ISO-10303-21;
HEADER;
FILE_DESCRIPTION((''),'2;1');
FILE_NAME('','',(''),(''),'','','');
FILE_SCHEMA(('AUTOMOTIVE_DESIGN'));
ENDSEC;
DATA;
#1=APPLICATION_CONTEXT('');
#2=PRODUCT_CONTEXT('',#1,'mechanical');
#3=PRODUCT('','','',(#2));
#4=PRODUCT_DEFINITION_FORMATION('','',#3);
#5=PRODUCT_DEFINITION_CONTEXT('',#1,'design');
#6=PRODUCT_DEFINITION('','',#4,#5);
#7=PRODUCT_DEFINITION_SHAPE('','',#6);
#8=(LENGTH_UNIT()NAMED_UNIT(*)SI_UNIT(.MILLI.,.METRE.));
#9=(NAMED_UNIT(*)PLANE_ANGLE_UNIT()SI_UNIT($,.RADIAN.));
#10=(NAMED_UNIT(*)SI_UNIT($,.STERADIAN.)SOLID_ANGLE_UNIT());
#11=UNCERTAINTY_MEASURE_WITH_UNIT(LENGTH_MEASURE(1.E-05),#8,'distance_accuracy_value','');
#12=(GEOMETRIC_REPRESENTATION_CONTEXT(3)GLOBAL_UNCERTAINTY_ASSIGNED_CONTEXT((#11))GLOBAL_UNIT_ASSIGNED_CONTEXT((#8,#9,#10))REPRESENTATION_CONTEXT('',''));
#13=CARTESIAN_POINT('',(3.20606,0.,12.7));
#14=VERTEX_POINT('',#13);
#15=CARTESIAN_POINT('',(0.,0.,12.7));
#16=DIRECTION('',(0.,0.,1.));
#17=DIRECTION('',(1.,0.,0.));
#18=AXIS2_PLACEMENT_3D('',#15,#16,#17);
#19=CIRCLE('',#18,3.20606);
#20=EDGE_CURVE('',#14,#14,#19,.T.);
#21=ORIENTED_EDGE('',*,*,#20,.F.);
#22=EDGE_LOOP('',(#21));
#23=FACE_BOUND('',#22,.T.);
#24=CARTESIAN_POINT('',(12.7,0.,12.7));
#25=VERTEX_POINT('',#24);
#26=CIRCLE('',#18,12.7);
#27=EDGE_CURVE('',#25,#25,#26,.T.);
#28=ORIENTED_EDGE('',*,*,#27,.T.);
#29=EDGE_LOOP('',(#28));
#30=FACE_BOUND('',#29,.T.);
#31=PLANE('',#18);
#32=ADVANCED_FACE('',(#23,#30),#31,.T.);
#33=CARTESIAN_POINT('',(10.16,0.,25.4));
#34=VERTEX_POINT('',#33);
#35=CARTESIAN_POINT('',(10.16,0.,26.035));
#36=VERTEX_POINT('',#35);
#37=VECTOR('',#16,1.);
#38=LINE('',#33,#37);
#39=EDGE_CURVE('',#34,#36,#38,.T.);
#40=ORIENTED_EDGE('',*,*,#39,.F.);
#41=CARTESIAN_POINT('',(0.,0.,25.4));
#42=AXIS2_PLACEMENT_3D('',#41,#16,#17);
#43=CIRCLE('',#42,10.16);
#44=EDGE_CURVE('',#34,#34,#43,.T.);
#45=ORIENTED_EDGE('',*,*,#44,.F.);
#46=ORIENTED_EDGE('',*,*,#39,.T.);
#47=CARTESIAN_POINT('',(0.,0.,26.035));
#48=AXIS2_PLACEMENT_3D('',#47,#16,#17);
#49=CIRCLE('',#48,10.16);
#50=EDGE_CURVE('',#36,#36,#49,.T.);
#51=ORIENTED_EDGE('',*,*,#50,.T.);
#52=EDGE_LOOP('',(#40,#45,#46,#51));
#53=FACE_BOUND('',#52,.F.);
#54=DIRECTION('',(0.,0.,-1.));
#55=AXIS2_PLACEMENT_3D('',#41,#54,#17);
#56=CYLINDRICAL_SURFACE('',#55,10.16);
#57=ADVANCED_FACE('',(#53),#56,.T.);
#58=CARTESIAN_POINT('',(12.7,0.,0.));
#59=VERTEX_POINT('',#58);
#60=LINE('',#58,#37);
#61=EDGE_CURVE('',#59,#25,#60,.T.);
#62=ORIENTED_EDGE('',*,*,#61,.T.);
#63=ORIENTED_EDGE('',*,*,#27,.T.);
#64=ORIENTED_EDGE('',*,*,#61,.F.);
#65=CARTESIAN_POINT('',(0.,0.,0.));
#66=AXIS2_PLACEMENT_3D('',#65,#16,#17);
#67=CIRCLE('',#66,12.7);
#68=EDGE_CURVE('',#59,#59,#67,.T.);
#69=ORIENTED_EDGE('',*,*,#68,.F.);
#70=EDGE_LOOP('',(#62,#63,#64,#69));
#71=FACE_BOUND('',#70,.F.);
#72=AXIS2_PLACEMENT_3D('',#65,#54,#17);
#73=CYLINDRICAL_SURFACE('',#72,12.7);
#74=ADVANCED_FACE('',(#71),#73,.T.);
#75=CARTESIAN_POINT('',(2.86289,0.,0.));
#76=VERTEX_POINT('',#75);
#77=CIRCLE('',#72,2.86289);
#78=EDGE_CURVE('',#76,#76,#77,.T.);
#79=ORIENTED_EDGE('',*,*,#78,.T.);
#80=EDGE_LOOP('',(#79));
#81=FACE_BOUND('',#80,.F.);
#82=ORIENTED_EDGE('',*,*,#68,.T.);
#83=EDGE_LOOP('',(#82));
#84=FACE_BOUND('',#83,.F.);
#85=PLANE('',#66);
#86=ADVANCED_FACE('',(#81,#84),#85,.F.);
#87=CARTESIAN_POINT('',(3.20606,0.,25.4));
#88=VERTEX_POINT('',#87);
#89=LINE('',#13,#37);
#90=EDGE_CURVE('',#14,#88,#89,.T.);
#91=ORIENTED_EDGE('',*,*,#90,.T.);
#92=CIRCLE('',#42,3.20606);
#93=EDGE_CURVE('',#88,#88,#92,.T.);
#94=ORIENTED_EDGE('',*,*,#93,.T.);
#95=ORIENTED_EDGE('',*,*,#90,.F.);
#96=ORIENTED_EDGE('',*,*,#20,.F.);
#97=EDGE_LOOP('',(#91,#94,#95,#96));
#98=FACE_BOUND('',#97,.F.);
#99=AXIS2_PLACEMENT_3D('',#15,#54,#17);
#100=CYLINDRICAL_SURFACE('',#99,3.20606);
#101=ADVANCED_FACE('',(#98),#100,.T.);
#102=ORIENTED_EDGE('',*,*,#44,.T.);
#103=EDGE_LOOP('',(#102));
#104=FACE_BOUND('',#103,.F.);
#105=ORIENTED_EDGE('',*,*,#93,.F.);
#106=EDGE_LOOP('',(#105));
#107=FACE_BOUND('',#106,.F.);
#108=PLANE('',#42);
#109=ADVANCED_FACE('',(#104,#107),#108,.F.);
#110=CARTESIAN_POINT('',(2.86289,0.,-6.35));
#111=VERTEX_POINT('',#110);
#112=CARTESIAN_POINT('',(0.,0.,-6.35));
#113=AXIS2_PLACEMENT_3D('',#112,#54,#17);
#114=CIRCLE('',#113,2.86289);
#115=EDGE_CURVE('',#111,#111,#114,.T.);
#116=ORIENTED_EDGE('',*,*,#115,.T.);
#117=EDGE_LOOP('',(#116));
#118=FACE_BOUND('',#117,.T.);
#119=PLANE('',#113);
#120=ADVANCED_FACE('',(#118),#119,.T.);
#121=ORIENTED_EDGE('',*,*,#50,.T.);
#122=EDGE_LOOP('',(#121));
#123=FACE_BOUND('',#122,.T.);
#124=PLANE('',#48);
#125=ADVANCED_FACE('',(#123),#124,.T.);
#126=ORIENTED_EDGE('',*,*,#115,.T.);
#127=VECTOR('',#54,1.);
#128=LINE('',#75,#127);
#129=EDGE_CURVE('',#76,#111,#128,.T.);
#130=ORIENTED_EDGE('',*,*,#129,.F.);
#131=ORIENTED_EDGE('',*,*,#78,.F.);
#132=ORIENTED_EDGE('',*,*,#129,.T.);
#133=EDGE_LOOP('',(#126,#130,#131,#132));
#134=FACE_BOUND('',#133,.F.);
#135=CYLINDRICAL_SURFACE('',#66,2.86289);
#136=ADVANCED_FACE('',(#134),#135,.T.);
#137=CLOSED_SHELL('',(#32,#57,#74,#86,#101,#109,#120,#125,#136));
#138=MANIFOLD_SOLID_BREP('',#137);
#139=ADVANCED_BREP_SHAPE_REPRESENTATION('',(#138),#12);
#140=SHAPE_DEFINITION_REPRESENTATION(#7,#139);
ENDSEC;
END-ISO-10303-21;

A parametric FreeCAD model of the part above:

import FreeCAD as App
import Part
import Sketcher
Q = App.Units.Quantity

doc = App.newDocument("Part")
body = doc.addObject("PartDesign::Body", "Body")

# Sketch on XY plane
sketch1 = doc.addObject("Sketcher::SketchObject", "Sketch")
body.addObject(sketch1)
sketch1.AttachmentSupport = (doc.XY_Plane, [""])
sketch1.MapMode = "FlatFace"
sketch1.addGeometry(Part.Circle(App.Vector(0, 0, 0), App.Vector(0, 0, 1), 13), False)
sketch1.addConstraint(Sketcher.Constraint("Coincident", 0, 3, -1, 1))
sketch1.addConstraint(Sketcher.Constraint("Diameter", 0, Q("1 in")))
pad1 = doc.addObject("PartDesign::Pad", "Pad")
body.addObject(pad1)
pad1.Profile = sketch1
pad1.Length = Q("0.5 in")

# Sketch on XY plane
sketch2 = doc.addObject("Sketcher::SketchObject", "Sketch001")
body.addObject(sketch2)
sketch2.AttachmentSupport = (doc.XY_Plane, [""])
sketch2.MapMode = "FlatFace"
sketch2.AttachmentOffset = App.Placement(App.Vector(0, 0, 0.5 * 25.4), App.Rotation())
sketch2.addGeometry(Part.Circle(App.Vector(0, 0, 0), App.Vector(0, 0, 1), 3.2), False)
sketch2.addConstraint(Sketcher.Constraint("Coincident", 0, 3, -1, 1))
sketch2.addConstraint(Sketcher.Constraint("Diameter", 0, Q("6.41212 mm")))
pad2 = doc.addObject("PartDesign::Pad", "Pad001")
body.addObject(pad2)
pad2.Profile = sketch2
pad2.Length = Q("0.5 in")

# Sketch on XY plane
sketch3 = doc.addObject("Sketcher::SketchObject", "Sketch002")
body.addObject(sketch3)
sketch3.AttachmentSupport = (doc.XY_Plane, [""])
sketch3.MapMode = "FlatFace"
sketch3.AttachmentOffset = App.Placement(App.Vector(0, 0, 1 * 25.4), App.Rotation())
sketch3.addGeometry(Part.Circle(App.Vector(0, 0, 0), App.Vector(0, 0, 1), 10), False)
sketch3.addConstraint(Sketcher.Constraint("Coincident", 0, 3, -1, 1))
sketch3.addConstraint(Sketcher.Constraint("Diameter", 0, Q("0.8 in")))
pad3 = doc.addObject("PartDesign::Pad", "Pad002")
body.addObject(pad3)
pad3.Profile = sketch3
pad3.Length = Q("0.025 in")

# Sketch on XY plane
sketch4 = doc.addObject("Sketcher::SketchObject", "Sketch003")
body.addObject(sketch4)
sketch4.AttachmentSupport = (doc.XY_Plane, [""])
sketch4.MapMode = "FlatFace"
sketch4.addGeometry(Part.Circle(App.Vector(0, 0, 0), App.Vector(0, 0, 1), 2.9), False)
sketch4.addConstraint(Sketcher.Constraint("Coincident", 0, 3, -1, 1))
sketch4.addConstraint(Sketcher.Constraint("Diameter", 0, Q("5.72578 mm")))
pad4 = doc.addObject("PartDesign::Pad", "Pad003")
body.addObject(pad4)
pad4.Profile = sketch4
pad4.Length = Q("0.25 in")
pad4.Reversed = True

doc.recompute()
